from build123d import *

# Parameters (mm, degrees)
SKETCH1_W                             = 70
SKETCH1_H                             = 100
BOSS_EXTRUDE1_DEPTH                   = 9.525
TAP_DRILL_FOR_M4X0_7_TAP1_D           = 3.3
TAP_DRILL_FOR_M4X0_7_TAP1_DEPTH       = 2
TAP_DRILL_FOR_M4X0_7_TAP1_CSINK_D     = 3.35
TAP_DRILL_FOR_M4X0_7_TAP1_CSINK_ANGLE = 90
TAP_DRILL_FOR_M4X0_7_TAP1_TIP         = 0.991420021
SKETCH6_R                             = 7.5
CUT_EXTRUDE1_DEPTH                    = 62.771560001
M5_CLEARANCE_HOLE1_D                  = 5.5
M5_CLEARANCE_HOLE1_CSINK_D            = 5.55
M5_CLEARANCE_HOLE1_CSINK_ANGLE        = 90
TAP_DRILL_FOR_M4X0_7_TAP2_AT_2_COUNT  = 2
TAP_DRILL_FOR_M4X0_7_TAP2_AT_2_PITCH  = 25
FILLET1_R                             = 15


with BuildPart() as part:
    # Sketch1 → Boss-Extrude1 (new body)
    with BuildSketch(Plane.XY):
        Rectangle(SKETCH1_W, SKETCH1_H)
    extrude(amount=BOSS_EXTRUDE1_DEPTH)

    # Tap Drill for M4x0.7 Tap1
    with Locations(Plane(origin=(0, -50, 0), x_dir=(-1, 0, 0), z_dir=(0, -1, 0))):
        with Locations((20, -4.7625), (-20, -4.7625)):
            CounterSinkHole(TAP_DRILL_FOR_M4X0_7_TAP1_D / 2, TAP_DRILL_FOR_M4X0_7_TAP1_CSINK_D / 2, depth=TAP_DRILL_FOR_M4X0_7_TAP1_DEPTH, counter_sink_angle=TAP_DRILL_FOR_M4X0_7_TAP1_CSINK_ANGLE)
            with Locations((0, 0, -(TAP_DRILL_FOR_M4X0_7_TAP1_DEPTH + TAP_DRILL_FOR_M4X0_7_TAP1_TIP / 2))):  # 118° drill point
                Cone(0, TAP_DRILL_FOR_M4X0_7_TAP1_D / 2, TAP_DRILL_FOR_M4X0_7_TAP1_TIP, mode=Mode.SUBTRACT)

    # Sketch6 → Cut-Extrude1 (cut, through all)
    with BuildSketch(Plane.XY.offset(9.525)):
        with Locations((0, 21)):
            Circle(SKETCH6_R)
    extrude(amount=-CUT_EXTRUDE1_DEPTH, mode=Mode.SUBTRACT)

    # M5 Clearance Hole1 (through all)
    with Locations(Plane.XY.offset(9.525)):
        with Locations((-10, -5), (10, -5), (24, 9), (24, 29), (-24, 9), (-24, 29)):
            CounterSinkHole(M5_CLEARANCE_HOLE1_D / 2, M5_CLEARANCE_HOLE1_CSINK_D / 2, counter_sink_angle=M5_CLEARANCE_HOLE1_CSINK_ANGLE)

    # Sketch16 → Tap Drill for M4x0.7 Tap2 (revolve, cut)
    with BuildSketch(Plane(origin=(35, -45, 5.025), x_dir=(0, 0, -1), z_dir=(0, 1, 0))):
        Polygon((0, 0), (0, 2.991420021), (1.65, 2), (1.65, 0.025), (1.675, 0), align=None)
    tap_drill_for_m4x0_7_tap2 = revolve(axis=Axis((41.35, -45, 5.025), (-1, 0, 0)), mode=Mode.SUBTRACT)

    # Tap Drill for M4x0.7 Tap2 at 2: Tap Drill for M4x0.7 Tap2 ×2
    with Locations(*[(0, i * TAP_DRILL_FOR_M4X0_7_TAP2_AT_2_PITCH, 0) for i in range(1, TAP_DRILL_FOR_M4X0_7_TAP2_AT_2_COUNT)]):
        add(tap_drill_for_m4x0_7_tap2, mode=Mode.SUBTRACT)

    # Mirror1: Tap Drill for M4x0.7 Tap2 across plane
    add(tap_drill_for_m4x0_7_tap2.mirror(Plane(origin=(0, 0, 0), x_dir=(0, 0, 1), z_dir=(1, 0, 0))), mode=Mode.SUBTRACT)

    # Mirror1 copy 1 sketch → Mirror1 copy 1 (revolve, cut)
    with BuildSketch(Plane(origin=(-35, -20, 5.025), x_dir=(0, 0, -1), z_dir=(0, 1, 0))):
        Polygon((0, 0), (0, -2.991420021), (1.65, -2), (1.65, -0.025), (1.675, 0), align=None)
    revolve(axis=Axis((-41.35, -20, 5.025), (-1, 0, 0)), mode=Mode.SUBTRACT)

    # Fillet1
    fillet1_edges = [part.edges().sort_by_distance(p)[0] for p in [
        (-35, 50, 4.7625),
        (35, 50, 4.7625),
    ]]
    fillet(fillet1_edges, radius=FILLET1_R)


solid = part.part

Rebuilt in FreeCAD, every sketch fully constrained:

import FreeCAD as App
import Part
import Sketcher
from FreeCAD import Vector
Q = App.Units.Quantity


def edges_at(feature, points):
    """Names of the edges that pass closest to the given points."""
    edges = feature.Shape.Edges
    near = lambda p: min(range(len(edges)), key=lambda i: edges[i].distToShape(Part.Vertex(*p))[0])
    return sorted({f"Edge{near(p) + 1}" for p in points})

doc = App.newDocument("Part")
body = doc.addObject("PartDesign::Body", "Body")

sketch1 = body.newObject("Sketcher::SketchObject", "Sketch")
sketch1.AttachmentSupport = (doc.getObject("XY_Plane"), [""])
sketch1.MapMode = "FlatFace"
sketch1.addGeometry([
    Part.LineSegment(Vector(-35, 50, 0), Vector(-35, -50, 0)),
    Part.LineSegment(Vector(-35, -50, 0), Vector(35, -50, 0)),
    Part.LineSegment(Vector(35, -50, 0), Vector(35, 50, 0)),
    Part.LineSegment(Vector(35, 50, 0), Vector(-35, 50, 0)),
], False)
sketch1.addConstraint([
    Sketcher.Constraint("Coincident", 0, 2, 1, 1),
    Sketcher.Constraint("Coincident", 1, 2, 2, 1),
    Sketcher.Constraint("Coincident", 2, 2, 3, 1),
    Sketcher.Constraint("Coincident", 3, 2, 0, 1),
    Sketcher.Constraint("Vertical", 0),
    Sketcher.Constraint("Horizontal", 1),
    Sketcher.Constraint("Vertical", 2),
    Sketcher.Constraint("Horizontal", 3),
    Sketcher.Constraint("Symmetric", 0, 2, 2, 2, -1, 1),
    Sketcher.Constraint("DistanceX", 1, 1, 1, 2, 70.0),
    Sketcher.Constraint("DistanceY", 0, 2, 0, 1, 100.0),
])
pad1 = body.newObject("PartDesign::Pad", "Pad")
pad1.Profile = sketch1
pad1.Length = 9.525

sketch2 = body.newObject("Sketcher::SketchObject", "Sketch001")
sketch2.AttachmentSupport = (doc.getObject("XZ_Plane"), [""])
sketch2.MapMode = "FlatFace"
sketch2.AttachmentOffset = App.Placement(Vector(0, 0, 50), App.Rotation())
sketch2.addGeometry([
    Part.Circle(Vector(-20, 4.8, 0), Vector(0, 0, 1), 1.6),
    Part.Circle(Vector(20, 4.8, 0), Vector(0, 0, 1), 1.6),
], False)
sketch2.addConstraint([
    Sketcher.Constraint("Equal", 0, 1),
    Sketcher.Constraint("Symmetric", 0, 3, 1, 3, -2),
    Sketcher.Constraint("Diameter", 0, 3.3),
    Sketcher.Constraint("DistanceX", 0, 3, -1, 1, 20.0),
    Sketcher.Constraint("DistanceY", -1, 1, 0, 3, 4.7625),
])
doc.recompute()
hole = body.newObject("PartDesign::Hole", "Hole")
hole.Profile = sketch2
hole.ThreadType = "None"
hole.Diameter = 3.3
hole.DepthType = "Dimension"
hole.Depth = 2
hole.DrillPoint = "Angled"
hole.DrillPointAngle = 118
hole.HoleCutType = "Countersink"
hole.HoleCutDiameter = 3.35
hole.HoleCutCountersinkAngle = 90

sketch3 = body.newObject("Sketcher::SketchObject", "Sketch002")
sketch3.AttachmentSupport = (doc.getObject("XY_Plane"), [""])
sketch3.MapMode = "FlatFace"
sketch3.AttachmentOffset = App.Placement(Vector(0, 0, 9.525), App.Rotation())
sketch3.addGeometry(Part.Circle(Vector(0, 21, 0), Vector(0, 0, 1), 8), False)
sketch3.addConstraint([
    Sketcher.Constraint("PointOnObject", 0, 3, -2),
    Sketcher.Constraint("Diameter", 0, 15.0),
    Sketcher.Constraint("DistanceY", -1, 1, 0, 3, 21.0),
])
pocket1 = body.newObject("PartDesign::Pocket", "Pocket")
pocket1.Profile = sketch3
pocket1.Type = "ThroughAll"

sketch4 = body.newObject("Sketcher::SketchObject", "Sketch003")
sketch4.AttachmentSupport = (doc.getObject("XY_Plane"), [""])
sketch4.MapMode = "FlatFace"
sketch4.AttachmentOffset = App.Placement(Vector(0, 0, 9.525), App.Rotation())
sketch4.addGeometry([
    Part.Circle(Vector(-10, -5, 0), Vector(0, 0, 1), 2.8),
    Part.Circle(Vector(10, -5, 0), Vector(0, 0, 1), 2.8),
    Part.Circle(Vector(24, 9, 0), Vector(0, 0, 1), 2.8),
    Part.Circle(Vector(24, 29, 0), Vector(0, 0, 1), 2.8),
    Part.Circle(Vector(-24, 9, 0), Vector(0, 0, 1), 2.8),
    Part.Circle(Vector(-24, 29, 0), Vector(0, 0, 1), 2.8),
], False)
sketch4.addConstraint([
    Sketcher.Constraint("Equal", 0, 1),
    Sketcher.Constraint("Equal", 1, 2),
    Sketcher.Constraint("Equal", 2, 3),
    Sketcher.Constraint("Equal", 3, 4),
    Sketcher.Constraint("Equal", 4, 5),
    Sketcher.Constraint("Symmetric", 0, 3, 1, 3, -2),
    Sketcher.Constraint("Symmetric", 2, 3, 4, 3, -2),
    Sketcher.Constraint("Symmetric", 3, 3, 5, 3, -2),
    Sketcher.Constraint("Vertical", 2, 3, 3, 3),
    Sketcher.Constraint("Diameter", 0, 5.5),
    Sketcher.Constraint("DistanceX", 0, 3, -1, 1, 10.0),
    Sketcher.Constraint("DistanceY", 0, 3, -1, 1, 5.0),
    Sketcher.Constraint("DistanceX", -1, 1, 2, 3, 24.0),
    Sketcher.Constraint("DistanceY", -1, 1, 2, 3, 9.0),
    Sketcher.Constraint("DistanceY", -1, 1, 3, 3, 29.0),
])
doc.recompute()
hole2 = body.newObject("PartDesign::Hole", "Hole001")
hole2.Profile = sketch4
hole2.ThreadType = "None"
hole2.Diameter = 5.5
hole2.DepthType = "ThroughAll"
hole2.HoleCutType = "Countersink"
hole2.HoleCutDiameter = 5.55
hole2.HoleCutCountersinkAngle = 90

sketch5 = body.newObject("Sketcher::SketchObject", "Sketch004")
sketch5.AttachmentSupport = (doc.getObject("XZ_Plane"), [""])
sketch5.MapMode = "FlatFace"
sketch5.AttachmentOffset = App.Placement(Vector(0, 0, 45), App.Rotation())
sketch5.addGeometry([
    Part.LineSegment(Vector(32.009, 5.025, 0), Vector(35, 5.025, 0)),
    Part.LineSegment(Vector(35, 5.025, 0), Vector(35, 3.35, 0)),
    Part.LineSegment(Vector(35, 3.35, 0), Vector(34.975, 3.375, 0)),
    Part.LineSegment(Vector(34.975, 3.375, 0), Vector(33, 3.375, 0)),
    Part.LineSegment(Vector(33, 3.375, 0), Vector(32.009, 5.025, 0)),
], False)
sketch5.addGeometry(Part.LineSegment(Vector(35, 5.025, 0), Vector(32.009, 5.025, 0)), True)
sketch5.addConstraint([
    Sketcher.Constraint("Coincident", 0, 2, 1, 1),
    Sketcher.Constraint("Coincident", 1, 2, 2, 1),
    Sketcher.Constraint("Coincident", 2, 2, 3, 1),
    Sketcher.Constraint("Coincident", 3, 2, 4, 1),
    Sketcher.Constraint("Coincident", 4, 2, 0, 1),
    Sketcher.Constraint("Horizontal", 0),
    Sketcher.Constraint("Vertical", 1),
    Sketcher.Constraint("Horizontal", 3),
    Sketcher.Constraint("Horizontal", 5),
    Sketcher.Constraint("Coincident", 5, 1, 0, 2),
    Sketcher.Constraint("Equal", 0, 5),
    Sketcher.Constraint("Angle", 2, Q("135 deg")),
    Sketcher.Constraint("Angle", 4, Q("121 deg")),
    Sketcher.Constraint("DistanceX", -1, 1, 0, 2, 35.0),
    Sketcher.Constraint("DistanceX", -1, 1, 3, 2, 33.0),
    Sketcher.Constraint("DistanceX", 3, 2, 3, 1, 1.975),
    Sketcher.Constraint("DistanceY", 1, 2, 1, 1, 1.675),
    Sketcher.Constraint("DistanceY", -1, 1, 1, 2, 3.35),
])
groove = body.newObject("PartDesign::Groove", "Groove")
groove.Profile = sketch5
groove.ReferenceAxis = (sketch5, ["Axis0"])
groove.Angle = 360
doc.recompute()

linearpattern = body.newObject("PartDesign::LinearPattern", "LinearPattern")
linearpattern.Originals = [groove]
linearpattern.Direction = (doc.getObject("Y_Axis"), [""])
linearpattern.Mode = "offset"
linearpattern.Offset = 25
linearpattern.Occurrences = 2
body.Tip = linearpattern
doc.recompute()

mirrored = body.newObject("PartDesign::Mirrored", "Mirrored")
mirrored.Originals = [groove]
mirrored.MirrorPlane = (doc.getObject("YZ_Plane"), [""])
body.Tip = mirrored

sketch6 = body.newObject("Sketcher::SketchObject", "Sketch005")
sketch6.AttachmentSupport = (doc.getObject("XZ_Plane"), [""])
sketch6.MapMode = "FlatFace"
sketch6.AttachmentOffset = App.Placement(Vector(0, 0, 20), App.Rotation())
sketch6.addGeometry([
    Part.LineSegment(Vector(-35, 5.025, 0), Vector(-32.009, 5.025, 0)),
    Part.LineSegment(Vector(-32.009, 5.025, 0), Vector(-33, 3.375, 0)),
    Part.LineSegment(Vector(-33, 3.375, 0), Vector(-34.975, 3.375, 0)),
    Part.LineSegment(Vector(-34.975, 3.375, 0), Vector(-35, 3.35, 0)),
    Part.LineSegment(Vector(-35, 3.35, 0), Vector(-35, 5.025, 0)),
], False)
sketch6.addGeometry(Part.LineSegment(Vector(-32.009, 5.025, 0), Vector(-35, 5.025, 0)), True)
sketch6.addConstraint([
    Sketcher.Constraint("Coincident", 0, 2, 1, 1),
    Sketcher.Constraint("Coincident", 1, 2, 2, 1),
    Sketcher.Constraint("Coincident", 2, 2, 3, 1),
    Sketcher.Constraint("Coincident", 3, 2, 4, 1),
    Sketcher.Constraint("Coincident", 4, 2, 0, 1),
    Sketcher.Constraint("Horizontal", 0),
    Sketcher.Constraint("Horizontal", 2),
    Sketcher.Constraint("Vertical", 4),
    Sketcher.Constraint("Horizontal", 5),
    Sketcher.Constraint("Coincident", 5, 1, 0, 2),
    Sketcher.Constraint("Vertical", 3, 2, 5, 2),
    Sketcher.Constraint("Angle", 1, Q("-121 deg")),
    Sketcher.Constraint("Angle", 3, Q("-135 deg")),
    Sketcher.Constraint("DistanceX", 1, 2, -1, 1, 33.0),
    Sketcher.Constraint("DistanceX", 3, 2, -1, 1, 35.0),
    Sketcher.Constraint("DistanceX", 2, 2, 2, 1, 1.975),
    Sketcher.Constraint("DistanceY", 4, 1, 4, 2, 1.675),
    Sketcher.Constraint("DistanceY", -1, 1, 3, 2, 3.35),
])
groove2 = body.newObject("PartDesign::Groove", "Groove001")
groove2.Profile = sketch6
groove2.ReferenceAxis = (sketch6, ["Axis0"])
groove2.Angle = 360
doc.recompute()

fillet = body.newObject("PartDesign::Fillet", "Fillet")
fillet.Base = (groove2, edges_at(groove2, [(-35, 50, 4.763), (35, 50, 4.763)]))
fillet.Radius = 15

doc.recompute()
